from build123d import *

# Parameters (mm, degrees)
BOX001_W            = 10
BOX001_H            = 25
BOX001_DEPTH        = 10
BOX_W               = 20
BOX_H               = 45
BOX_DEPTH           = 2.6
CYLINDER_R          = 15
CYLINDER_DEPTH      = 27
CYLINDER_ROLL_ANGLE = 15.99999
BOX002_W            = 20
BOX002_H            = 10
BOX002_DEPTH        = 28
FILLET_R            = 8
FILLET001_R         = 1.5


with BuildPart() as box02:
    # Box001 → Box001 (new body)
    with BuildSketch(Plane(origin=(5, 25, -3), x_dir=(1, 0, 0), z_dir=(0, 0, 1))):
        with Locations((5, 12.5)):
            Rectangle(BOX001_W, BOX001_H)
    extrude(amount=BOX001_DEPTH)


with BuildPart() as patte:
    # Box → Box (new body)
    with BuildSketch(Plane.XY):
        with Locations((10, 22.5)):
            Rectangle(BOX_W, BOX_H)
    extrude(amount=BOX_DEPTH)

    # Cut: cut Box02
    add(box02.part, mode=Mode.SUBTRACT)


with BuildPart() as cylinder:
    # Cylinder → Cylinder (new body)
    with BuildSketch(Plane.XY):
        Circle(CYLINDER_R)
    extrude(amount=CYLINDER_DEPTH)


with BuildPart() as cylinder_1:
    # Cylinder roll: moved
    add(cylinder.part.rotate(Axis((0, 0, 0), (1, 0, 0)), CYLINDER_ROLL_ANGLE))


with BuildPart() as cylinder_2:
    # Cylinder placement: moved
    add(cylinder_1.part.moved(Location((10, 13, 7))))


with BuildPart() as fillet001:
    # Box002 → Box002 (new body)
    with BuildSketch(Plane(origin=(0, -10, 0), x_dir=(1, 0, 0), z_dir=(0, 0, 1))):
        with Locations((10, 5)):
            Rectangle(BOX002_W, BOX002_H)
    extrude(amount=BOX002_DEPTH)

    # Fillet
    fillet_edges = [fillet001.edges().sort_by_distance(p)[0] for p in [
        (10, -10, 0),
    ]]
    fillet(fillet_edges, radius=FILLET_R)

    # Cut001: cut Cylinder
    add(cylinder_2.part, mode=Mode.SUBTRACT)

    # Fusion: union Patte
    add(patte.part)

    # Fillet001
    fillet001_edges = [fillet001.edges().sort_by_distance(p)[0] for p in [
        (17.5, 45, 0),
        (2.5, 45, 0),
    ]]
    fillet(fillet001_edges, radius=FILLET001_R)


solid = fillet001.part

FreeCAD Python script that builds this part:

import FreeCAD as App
import Part
import Sketcher

V = App.Vector
Q = App.Units.Quantity


def edges_at(feature, points):
    """Names of the edges that pass closest to the given points."""
    edges = feature.Shape.Edges
    near = lambda p: min(range(len(edges)), key=lambda i: edges[i].distToShape(Part.Vertex(*p))[0])
    return sorted({f"Edge{near(p) + 1}" for p in points})

doc = App.newDocument("Part")
params = doc.addObject("Spreadsheet::Sheet", "Params")
for row, (alias, value) in enumerate([
    ("sketch1_width", "10 mm"),
    ("sketch1_height", "25 mm"),
    ("pad1_length", "10 mm"),
    ("sketch2_width", "20 mm"),
    ("sketch2_height", "45 mm"),
    ("pad2_length", "2.6 mm"),
    ("sketch3_diameter", "30 mm"),
    ("pad3_length", "27 mm"),
    ("sketch4_width", "20 mm"),
    ("sketch4_height", "10 mm"),
    ("pad4_length", "28 mm"),
    ("fillet_radius", "8 mm"),
    ("fillet2_radius", "1.5 mm"),
], start=1):
    params.set(f"A{row}", alias)
    params.set(f"B{row}", "=" + value)
    params.setAlias(f"B{row}", alias)

body = doc.addObject("PartDesign::Body", "Body")

sketch1 = body.newObject("Sketcher::SketchObject", "Sketch")
sketch1.AttachmentSupport = (doc.getObject("XY_Plane"), [""])
sketch1.MapMode = "FlatFace"
sketch1.AttachmentOffset = App.Placement(V(0, 0, -3), App.Rotation())
sketch1.addGeometry(Part.LineSegment(V(5, 50, 0), V(5, 25, 0)), False)
sketch1.addGeometry(Part.LineSegment(V(5, 25, 0), V(15, 25, 0)), False)
sketch1.addGeometry(Part.LineSegment(V(15, 25, 0), V(15, 50, 0)), False)
sketch1.addGeometry(Part.LineSegment(V(15, 50, 0), V(5, 50, 0)), False)
sketch1.addConstraint(Sketcher.Constraint("Coincident", 0, 2, 1, 1))
sketch1.addConstraint(Sketcher.Constraint("Coincident", 1, 2, 2, 1))
sketch1.addConstraint(Sketcher.Constraint("Coincident", 2, 2, 3, 1))
sketch1.addConstraint(Sketcher.Constraint("Coincident", 3, 2, 0, 1))
sketch1.addConstraint(Sketcher.Constraint("Vertical", 0))
sketch1.addConstraint(Sketcher.Constraint("Horizontal", 1))
sketch1.addConstraint(Sketcher.Constraint("Vertical", 2))
sketch1.addConstraint(Sketcher.Constraint("Horizontal", 3))
sketch1.addConstraint(Sketcher.Constraint("DistanceX", 1, 1, 1, 2, Q("10 mm")))
sketch1.addConstraint(Sketcher.Constraint("DistanceY", 0, 2, 0, 1, Q("25 mm")))
sketch1.addConstraint(Sketcher.Constraint("DistanceX", -1, 1, 0, 2, Q("5 mm")))
sketch1.addConstraint(Sketcher.Constraint("DistanceY", -1, 1, 0, 2, Q("25 mm")))
sketch1.setExpression("Constraints[8]", "Params.sketch1_width")
sketch1.setExpression("Constraints[9]", "Params.sketch1_height")
pad1 = body.newObject("PartDesign::Pad", "Pad")
pad1.Profile = sketch1
pad1.setExpression("Length", "Params.pad1_length")
body2 = doc.addObject("PartDesign::Body", "Body001")

sketch2 = body2.newObject("Sketcher::SketchObject", "Sketch001")
sketch2.AttachmentSupport = (doc.getObject("XY_Plane001"), [""])
sketch2.MapMode = "FlatFace"
sketch2.addGeometry(Part.LineSegment(V(0, 45, 0), V(0, 0, 0)), False)
sketch2.addGeometry(Part.LineSegment(V(0, 0, 0), V(20, 0, 0)), False)
sketch2.addGeometry(Part.LineSegment(V(20, 0, 0), V(20, 45, 0)), False)
sketch2.addGeometry(Part.LineSegment(V(20, 45, 0), V(0, 45, 0)), False)
sketch2.addConstraint(Sketcher.Constraint("Coincident", 0, 2, 1, 1))
sketch2.addConstraint(Sketcher.Constraint("Coincident", 1, 2, 2, 1))
sketch2.addConstraint(Sketcher.Constraint("Coincident", 2, 2, 3, 1))
sketch2.addConstraint(Sketcher.Constraint("Coincident", 3, 2, 0, 1))
sketch2.addConstraint(Sketcher.Constraint("Vertical", 0))
sketch2.addConstraint(Sketcher.Constraint("Horizontal", 1))
sketch2.addConstraint(Sketcher.Constraint("Vertical", 2))
sketch2.addConstraint(Sketcher.Constraint("Horizontal", 3))
sketch2.addConstraint(Sketcher.Constraint("Coincident", 0, 2, -1, 1))
sketch2.addConstraint(Sketcher.Constraint("DistanceX", 1, 1, 1, 2, Q("20 mm")))
sketch2.addConstraint(Sketcher.Constraint("DistanceY", 0, 2, 0, 1, Q("45 mm")))
sketch2.setExpression("Constraints[9]", "Params.sketch2_width")
sketch2.setExpression("Constraints[10]", "Params.sketch2_height")
pad2 = body2.newObject("PartDesign::Pad", "Pad001")
pad2.Profile = sketch2
pad2.setExpression("Length", "Params.pad2_length")
doc.recompute()

boolean = body2.newObject("PartDesign::Boolean", "Boolean")
boolean.Type = "Cut"
boolean.addObjects([body])
body3 = doc.addObject("PartDesign::Body", "Body002")

sketch3 = body3.newObject("Sketcher::SketchObject", "Sketch002")
sketch3.AttachmentSupport = (doc.getObject("XY_Plane002"), [""])
sketch3.MapMode = "FlatFace"
sketch3.addGeometry(Part.Circle(V(0, 0, 0), V(0, 0, 1), 15), False)
sketch3.addConstraint(Sketcher.Constraint("Coincident", 0, 3, -1, 1))
sketch3.addConstraint(Sketcher.Constraint("Diameter", 0, Q("30 mm")))
sketch3.setExpression("Constraints[1]", "Params.sketch3_diameter")
pad3 = body3.newObject("PartDesign::Pad", "Pad002")
pad3.Profile = sketch3
pad3.setExpression("Length", "Params.pad3_length")
body4 = doc.addObject("PartDesign::Body", "Body003")
doc.recompute()

body3.Placement = App.Placement(V(0, 0, 0), App.Rotation(V(1, 0, 0), 15.99999))
boolean2 = body4.newObject("PartDesign::Boolean", "Boolean001")
boolean2.Type = "Fuse"
boolean2.addObjects([body3])
body5 = doc.addObject("PartDesign::Body", "Body004")
doc.recompute()

body4.Placement = App.Placement(V(10, 13, 7), App.Rotation(V(0, 0, 1), 0))
boolean3 = body5.newObject("PartDesign::Boolean", "Boolean002")
boolean3.Type = "Fuse"
boolean3.addObjects([body4])
body6 = doc.addObject("PartDesign::Body", "Body005")

sketch4 = body6.newObject("Sketcher::SketchObject", "Sketch003")
sketch4.AttachmentSupport = (doc.getObject("XY_Plane005"), [""])
sketch4.MapMode = "FlatFace"
sketch4.addGeometry(Part.LineSegment(V(0, 0, 0), V(0, -10, 0)), False)
sketch4.addGeometry(Part.LineSegment(V(0, -10, 0), V(20, -10, 0)), False)
sketch4.addGeometry(Part.LineSegment(V(20, -10, 0), V(20, 0, 0)), False)
sketch4.addGeometry(Part.LineSegment(V(20, 0, 0), V(0, 0, 0)), False)
sketch4.addConstraint(Sketcher.Constraint("Coincident", 0, 2, 1, 1))
sketch4.addConstraint(Sketcher.Constraint("Coincident", 1, 2, 2, 1))
sketch4.addConstraint(Sketcher.Constraint("Coincident", 2, 2, 3, 1))
sketch4.addConstraint(Sketcher.Constraint("Coincident", 3, 2, 0, 1))
sketch4.addConstraint(Sketcher.Constraint("Vertical", 0))
sketch4.addConstraint(Sketcher.Constraint("Horizontal", 1))
sketch4.addConstraint(Sketcher.Constraint("Vertical", 2))
sketch4.addConstraint(Sketcher.Constraint("Horizontal", 3))
sketch4.addConstraint(Sketcher.Constraint("Coincident", 3, 2, -1, 1))
sketch4.addConstraint(Sketcher.Constraint("DistanceX", 1, 1, 1, 2, Q("20 mm")))
sketch4.addConstraint(Sketcher.Constraint("DistanceY", 0, 2, 0, 1, Q("10 mm")))
sketch4.setExpression("Constraints[9]", "Params.sketch4_width")
sketch4.setExpression("Constraints[10]", "Params.sketch4_height")
pad4 = body6.newObject("PartDesign::Pad", "Pad003")
pad4.Profile = sketch4
pad4.setExpression("Length", "Params.pad4_length")
doc.recompute()

fillet = body6.newObject("PartDesign::Fillet", "Fillet")
fillet.Base = (pad4, edges_at(pad4, [(10, -10, 0)]))
fillet.setExpression("Radius", "Params.fillet_radius")
doc.recompute()

boolean4 = body6.newObject("PartDesign::Boolean", "Boolean003")
boolean4.Type = "Cut"
boolean4.addObjects([body5])
doc.recompute()

boolean5 = body6.newObject("PartDesign::Boolean", "Boolean004")
boolean5.Type = "Fuse"
boolean5.addObjects([body2])
doc.recompute()

fillet2 = body6.newObject("PartDesign::Fillet", "Fillet001")
fillet2.Base = (boolean5, edges_at(boolean5, [(17.5, 45, 0), (2.5, 45, 0)]))
fillet2.setExpression("Radius", "Params.fillet2_radius")

doc.recompute()
